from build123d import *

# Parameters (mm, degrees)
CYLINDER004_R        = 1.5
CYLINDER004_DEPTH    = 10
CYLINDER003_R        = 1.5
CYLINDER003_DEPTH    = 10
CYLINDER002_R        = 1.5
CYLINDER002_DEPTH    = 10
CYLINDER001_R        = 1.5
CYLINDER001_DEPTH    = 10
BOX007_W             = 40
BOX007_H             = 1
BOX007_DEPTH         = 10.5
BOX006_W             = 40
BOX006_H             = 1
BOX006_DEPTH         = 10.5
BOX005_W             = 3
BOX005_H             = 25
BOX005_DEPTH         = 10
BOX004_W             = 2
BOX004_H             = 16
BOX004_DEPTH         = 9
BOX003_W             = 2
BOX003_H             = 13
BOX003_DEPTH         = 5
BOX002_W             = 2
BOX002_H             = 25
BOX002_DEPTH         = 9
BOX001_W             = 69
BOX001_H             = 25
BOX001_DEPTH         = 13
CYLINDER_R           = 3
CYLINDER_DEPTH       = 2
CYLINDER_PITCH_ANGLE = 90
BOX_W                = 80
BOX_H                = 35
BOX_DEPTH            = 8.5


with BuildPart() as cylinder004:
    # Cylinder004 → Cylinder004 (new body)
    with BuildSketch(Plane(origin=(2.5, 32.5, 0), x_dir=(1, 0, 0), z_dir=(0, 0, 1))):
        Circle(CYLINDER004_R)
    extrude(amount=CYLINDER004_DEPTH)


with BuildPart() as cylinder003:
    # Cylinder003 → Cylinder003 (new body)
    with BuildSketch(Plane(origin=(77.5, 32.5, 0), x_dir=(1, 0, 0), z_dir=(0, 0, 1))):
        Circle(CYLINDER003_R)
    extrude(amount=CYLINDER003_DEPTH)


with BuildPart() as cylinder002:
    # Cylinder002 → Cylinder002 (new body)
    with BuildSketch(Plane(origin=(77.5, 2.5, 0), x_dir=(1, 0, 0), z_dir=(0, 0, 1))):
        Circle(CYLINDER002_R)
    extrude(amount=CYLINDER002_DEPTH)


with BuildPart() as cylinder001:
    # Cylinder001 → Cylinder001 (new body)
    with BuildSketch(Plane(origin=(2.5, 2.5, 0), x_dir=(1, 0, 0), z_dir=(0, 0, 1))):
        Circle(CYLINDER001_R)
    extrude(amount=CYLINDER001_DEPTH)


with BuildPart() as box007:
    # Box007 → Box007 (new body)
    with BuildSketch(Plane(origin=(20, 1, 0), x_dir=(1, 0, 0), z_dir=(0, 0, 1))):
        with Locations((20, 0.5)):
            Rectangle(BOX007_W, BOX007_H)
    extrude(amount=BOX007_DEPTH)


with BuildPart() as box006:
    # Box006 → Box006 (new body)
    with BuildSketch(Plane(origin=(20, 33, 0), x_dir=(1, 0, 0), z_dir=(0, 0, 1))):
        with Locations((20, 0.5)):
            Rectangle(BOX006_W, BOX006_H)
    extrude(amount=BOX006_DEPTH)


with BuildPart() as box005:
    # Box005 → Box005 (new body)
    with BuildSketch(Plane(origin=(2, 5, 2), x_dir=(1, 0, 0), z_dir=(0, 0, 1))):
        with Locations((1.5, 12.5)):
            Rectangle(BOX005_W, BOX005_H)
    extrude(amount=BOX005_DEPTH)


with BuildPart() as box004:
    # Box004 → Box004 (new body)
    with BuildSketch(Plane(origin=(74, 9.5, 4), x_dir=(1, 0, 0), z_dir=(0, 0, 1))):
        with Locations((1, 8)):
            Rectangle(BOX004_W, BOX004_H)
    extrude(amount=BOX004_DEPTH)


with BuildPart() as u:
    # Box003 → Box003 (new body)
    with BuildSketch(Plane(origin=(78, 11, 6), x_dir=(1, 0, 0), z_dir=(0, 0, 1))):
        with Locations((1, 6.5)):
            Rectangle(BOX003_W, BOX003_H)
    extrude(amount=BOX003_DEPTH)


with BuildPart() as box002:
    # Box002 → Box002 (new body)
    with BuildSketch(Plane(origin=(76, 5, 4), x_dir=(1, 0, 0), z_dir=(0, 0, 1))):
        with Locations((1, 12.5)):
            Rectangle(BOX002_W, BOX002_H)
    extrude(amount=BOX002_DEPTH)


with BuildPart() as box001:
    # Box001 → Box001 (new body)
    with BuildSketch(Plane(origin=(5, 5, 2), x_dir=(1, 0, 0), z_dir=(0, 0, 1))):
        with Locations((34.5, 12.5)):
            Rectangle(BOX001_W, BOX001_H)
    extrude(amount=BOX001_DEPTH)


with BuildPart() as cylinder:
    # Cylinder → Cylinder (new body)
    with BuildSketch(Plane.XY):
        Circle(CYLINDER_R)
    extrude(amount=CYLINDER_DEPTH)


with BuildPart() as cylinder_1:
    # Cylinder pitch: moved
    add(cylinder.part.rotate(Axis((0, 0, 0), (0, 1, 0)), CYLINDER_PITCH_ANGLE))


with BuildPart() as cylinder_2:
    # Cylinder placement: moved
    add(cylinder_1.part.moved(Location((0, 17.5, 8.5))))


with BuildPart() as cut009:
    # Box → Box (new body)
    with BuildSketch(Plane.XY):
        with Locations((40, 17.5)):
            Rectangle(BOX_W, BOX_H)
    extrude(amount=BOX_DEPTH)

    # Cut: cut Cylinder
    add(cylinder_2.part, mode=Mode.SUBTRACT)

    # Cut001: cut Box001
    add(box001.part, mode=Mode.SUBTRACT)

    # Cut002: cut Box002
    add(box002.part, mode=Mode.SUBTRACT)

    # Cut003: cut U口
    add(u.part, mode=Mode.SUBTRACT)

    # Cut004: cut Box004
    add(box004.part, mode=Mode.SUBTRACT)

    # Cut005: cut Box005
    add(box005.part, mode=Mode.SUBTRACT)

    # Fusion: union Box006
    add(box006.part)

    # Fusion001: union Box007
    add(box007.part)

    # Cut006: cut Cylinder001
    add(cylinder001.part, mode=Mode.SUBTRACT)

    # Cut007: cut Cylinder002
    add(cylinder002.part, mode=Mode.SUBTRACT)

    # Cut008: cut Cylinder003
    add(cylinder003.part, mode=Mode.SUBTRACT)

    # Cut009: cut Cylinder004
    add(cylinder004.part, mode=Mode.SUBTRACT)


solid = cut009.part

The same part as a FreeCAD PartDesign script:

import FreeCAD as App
import Part
import Sketcher

doc = App.newDocument("Part")
body = doc.addObject("PartDesign::Body", "Body")

# Sketch on XY plane
sketch1 = body.newObject("Sketcher::SketchObject", "Sketch")
sketch1.AttachmentSupport = (doc.getObject("XY_Plane"), [""])
sketch1.MapMode = "FlatFace"
sketch1.addGeometry(Part.Circle(App.Vector(2.5, 32.5, 0), App.Vector(0, 0, 1), 1.5), False)
sketch1.addConstraint(Sketcher.Constraint("Diameter", 0, 3.0))
sketch1.addConstraint(Sketcher.Constraint("DistanceX", -1, 1, 0, 3, 2.5))
sketch1.addConstraint(Sketcher.Constraint("DistanceY", -1, 1, 0, 3, 32.5))
pad1 = body.newObject("PartDesign::Pad", "Pad")
pad1.Profile = sketch1
pad1.Length = 10
body2 = doc.addObject("PartDesign::Body", "Body001")

# Sketch on XY plane
sketch2 = body2.newObject("Sketcher::SketchObject", "Sketch001")
sketch2.AttachmentSupport = (doc.getObject("XY_Plane001"), [""])
sketch2.MapMode = "FlatFace"
sketch2.addGeometry(Part.Circle(App.Vector(77.5, 32.5, 0), App.Vector(0, 0, 1), 1.5), False)
sketch2.addConstraint(Sketcher.Constraint("Diameter", 0, 3.0))
sketch2.addConstraint(Sketcher.Constraint("DistanceX", -1, 1, 0, 3, 77.5))
sketch2.addConstraint(Sketcher.Constraint("DistanceY", -1, 1, 0, 3, 32.5))
pad2 = body2.newObject("PartDesign::Pad", "Pad001")
pad2.Profile = sketch2
pad2.Length = 10
body3 = doc.addObject("PartDesign::Body", "Body002")

# Sketch on XY plane
sketch3 = body3.newObject("Sketcher::SketchObject", "Sketch002")
sketch3.AttachmentSupport = (doc.getObject("XY_Plane002"), [""])
sketch3.MapMode = "FlatFace"
sketch3.addGeometry(Part.Circle(App.Vector(77.5, 2.5, 0), App.Vector(0, 0, 1), 1.5), False)
sketch3.addConstraint(Sketcher.Constraint("Diameter", 0, 3.0))
sketch3.addConstraint(Sketcher.Constraint("DistanceX", -1, 1, 0, 3, 77.5))
sketch3.addConstraint(Sketcher.Constraint("DistanceY", -1, 1, 0, 3, 2.5))
pad3 = body3.newObject("PartDesign::Pad", "Pad002")
pad3.Profile = sketch3
pad3.Length = 10
body4 = doc.addObject("PartDesign::Body", "Body003")

# Sketch on XY plane
sketch4 = body4.newObject("Sketcher::SketchObject", "Sketch003")
sketch4.AttachmentSupport = (doc.getObject("XY_Plane003"), [""])
sketch4.MapMode = "FlatFace"
sketch4.addGeometry(Part.Circle(App.Vector(2.5, 2.5, 0), App.Vector(0, 0, 1), 1.5), False)
sketch4.addConstraint(Sketcher.Constraint("Diameter", 0, 3.0))
sketch4.addConstraint(Sketcher.Constraint("DistanceX", -1, 1, 0, 3, 2.5))
sketch4.addConstraint(Sketcher.Constraint("DistanceY", -1, 1, 0, 3, 2.5))
pad4 = body4.newObject("PartDesign::Pad", "Pad003")
pad4.Profile = sketch4
pad4.Length = 10
body5 = doc.addObject("PartDesign::Body", "Body004")

# Sketch on XY plane
sketch5 = body5.newObject("Sketcher::SketchObject", "Sketch004")
sketch5.AttachmentSupport = (doc.getObject("XY_Plane004"), [""])
sketch5.MapMode = "FlatFace"
sketch5.addGeometry(Part.LineSegment(App.Vector(20, 2, 0), App.Vector(20, 1, 0)), False)
sketch5.addGeometry(Part.LineSegment(App.Vector(20, 1, 0), App.Vector(60, 1, 0)), False)
sketch5.addGeometry(Part.LineSegment(App.Vector(60, 1, 0), App.Vector(60, 2, 0)), False)
sketch5.addGeometry(Part.LineSegment(App.Vector(60, 2, 0), App.Vector(20, 2, 0)), False)
sketch5.addConstraint(Sketcher.Constraint("Coincident", 0, 2, 1, 1))
sketch5.addConstraint(Sketcher.Constraint("Coincident", 1, 2, 2, 1))
sketch5.addConstraint(Sketcher.Constraint("Coincident", 2, 2, 3, 1))
sketch5.addConstraint(Sketcher.Constraint("Coincident", 3, 2, 0, 1))
sketch5.addConstraint(Sketcher.Constraint("Vertical", 0))
sketch5.addConstraint(Sketcher.Constraint("Horizontal", 1))
sketch5.addConstraint(Sketcher.Constraint("Vertical", 2))
sketch5.addConstraint(Sketcher.Constraint("Horizontal", 3))
sketch5.addConstraint(Sketcher.Constraint("DistanceX", 1, 1, 1, 2, 40.0))
sketch5.addConstraint(Sketcher.Constraint("DistanceY", 0, 2, 0, 1, 1.0))
sketch5.addConstraint(Sketcher.Constraint("DistanceX", -1, 1, 0, 2, 20.0))
sketch5.addConstraint(Sketcher.Constraint("DistanceY", -1, 1, 0, 2, 1.0))
pad5 = body5.newObject("PartDesign::Pad", "Pad004")
pad5.Profile = sketch5
pad5.Length = 10.5
body6 = doc.addObject("PartDesign::Body", "Body005")

# Sketch on XY plane
sketch6 = body6.newObject("Sketcher::SketchObject", "Sketch005")
sketch6.AttachmentSupport = (doc.getObject("XY_Plane005"), [""])
sketch6.MapMode = "FlatFace"
sketch6.addGeometry(Part.LineSegment(App.Vector(20, 34, 0), App.Vector(20, 33, 0)), False)
sketch6.addGeometry(Part.LineSegment(App.Vector(20, 33, 0), App.Vector(60, 33, 0)), False)
sketch6.addGeometry(Part.LineSegment(App.Vector(60, 33, 0), App.Vector(60, 34, 0)), False)
sketch6.addGeometry(Part.LineSegment(App.Vector(60, 34, 0), App.Vector(20, 34, 0)), False)
sketch6.addConstraint(Sketcher.Constraint("Coincident", 0, 2, 1, 1))
sketch6.addConstraint(Sketcher.Constraint("Coincident", 1, 2, 2, 1))
sketch6.addConstraint(Sketcher.Constraint("Coincident", 2, 2, 3, 1))
sketch6.addConstraint(Sketcher.Constraint("Coincident", 3, 2, 0, 1))
sketch6.addConstraint(Sketcher.Constraint("Vertical", 0))
sketch6.addConstraint(Sketcher.Constraint("Horizontal", 1))
sketch6.addConstraint(Sketcher.Constraint("Vertical", 2))
sketch6.addConstraint(Sketcher.Constraint("Horizontal", 3))
sketch6.addConstraint(Sketcher.Constraint("DistanceX", 1, 1, 1, 2, 40.0))
sketch6.addConstraint(Sketcher.Constraint("DistanceY", 0, 2, 0, 1, 1.0))
sketch6.addConstraint(Sketcher.Constraint("DistanceX", -1, 1, 0, 2, 20.0))
sketch6.addConstraint(Sketcher.Constraint("DistanceY", -1, 1, 0, 2, 33.0))
pad6 = body6.newObject("PartDesign::Pad", "Pad005")
pad6.Profile = sketch6
pad6.Length = 10.5
body7 = doc.addObject("PartDesign::Body", "Body006")

# Sketch on XY plane
sketch7 = body7.newObject("Sketcher::SketchObject", "Sketch006")
sketch7.AttachmentSupport = (doc.getObject("XY_Plane006"), [""])
sketch7.MapMode = "FlatFace"
sketch7.AttachmentOffset = App.Placement(App.Vector(0, 0, 2), App.Rotation())
sketch7.addGeometry(Part.LineSegment(App.Vector(2, 30, 0), App.Vector(2, 5, 0)), False)
sketch7.addGeometry(Part.LineSegment(App.Vector(2, 5, 0), App.Vector(5, 5, 0)), False)
sketch7.addGeometry(Part.LineSegment(App.Vector(5, 5, 0), App.Vector(5, 30, 0)), False)
sketch7.addGeometry(Part.LineSegment(App.Vector(5, 30, 0), App.Vector(2, 30, 0)), False)
sketch7.addConstraint(Sketcher.Constraint("Coincident", 0, 2, 1, 1))
sketch7.addConstraint(Sketcher.Constraint("Coincident", 1, 2, 2, 1))
sketch7.addConstraint(Sketcher.Constraint("Coincident", 2, 2, 3, 1))
sketch7.addConstraint(Sketcher.Constraint("Coincident", 3, 2, 0, 1))
sketch7.addConstraint(Sketcher.Constraint("Vertical", 0))
sketch7.addConstraint(Sketcher.Constraint("Horizontal", 1))
sketch7.addConstraint(Sketcher.Constraint("Vertical", 2))
sketch7.addConstraint(Sketcher.Constraint("Horizontal", 3))
sketch7.addConstraint(Sketcher.Constraint("DistanceX", 1, 1, 1, 2, 3.0))
sketch7.addConstraint(Sketcher.Constraint("DistanceY", 0, 2, 0, 1, 25.0))
sketch7.addConstraint(Sketcher.Constraint("DistanceX", -1, 1, 0, 2, 2.0))
sketch7.addConstraint(Sketcher.Constraint("DistanceY", -1, 1, 0, 2, 5.0))
pad7 = body7.newObject("PartDesign::Pad", "Pad006")
pad7.Profile = sketch7
pad7.Length = 10
body8 = doc.addObject("PartDesign::Body", "Body007")

# Sketch on XY plane
sketch8 = body8.newObject("Sketcher::SketchObject", "Sketch007")
sketch8.AttachmentSupport = (doc.getObject("XY_Plane007"), [""])
sketch8.MapMode = "FlatFace"
sketch8.AttachmentOffset = App.Placement(App.Vector(0, 0, 4), App.Rotation())
sketch8.addGeometry(Part.LineSegment(App.Vector(74, 25.5, 0), App.Vector(74, 9.5, 0)), False)
sketch8.addGeometry(Part.LineSegment(App.Vector(74, 9.5, 0), App.Vector(76, 9.5, 0)), False)
sketch8.addGeometry(Part.LineSegment(App.Vector(76, 9.5, 0), App.Vector(76, 25.5, 0)), False)
sketch8.addGeometry(Part.LineSegment(App.Vector(76, 25.5, 0), App.Vector(74, 25.5, 0)), False)
sketch8.addConstraint(Sketcher.Constraint("Coincident", 0, 2, 1, 1))
sketch8.addConstraint(Sketcher.Constraint("Coincident", 1, 2, 2, 1))
sketch8.addConstraint(Sketcher.Constraint("Coincident", 2, 2, 3, 1))
sketch8.addConstraint(Sketcher.Constraint("Coincident", 3, 2, 0, 1))
sketch8.addConstraint(Sketcher.Constraint("Vertical", 0))
sketch8.addConstraint(Sketcher.Constraint("Horizontal", 1))
sketch8.addConstraint(Sketcher.Constraint("Vertical", 2))
sketch8.addConstraint(Sketcher.Constraint("Horizontal", 3))
sketch8.addConstraint(Sketcher.Constraint("DistanceX", 1, 1, 1, 2, 2.0))
sketch8.addConstraint(Sketcher.Constraint("DistanceY", 0, 2, 0, 1, 16.0))
sketch8.addConstraint(Sketcher.Constraint("DistanceX", -1, 1, 0, 2, 74.0))
sketch8.addConstraint(Sketcher.Constraint("DistanceY", -1, 1, 0, 2, 9.5))
pad8 = body8.newObject("PartDesign::Pad", "Pad007")
pad8.Profile = sketch8
pad8.Length = 9
body9 = doc.addObject("PartDesign::Body", "Body008")

# Sketch on XY plane
sketch9 = body9.newObject("Sketcher::SketchObject", "Sketch008")
sketch9.AttachmentSupport = (doc.getObject("XY_Plane008"), [""])
sketch9.MapMode = "FlatFace"
sketch9.AttachmentOffset = App.Placement(App.Vector(0, 0, 6), App.Rotation())
sketch9.addGeometry(Part.LineSegment(App.Vector(78, 24, 0), App.Vector(78, 11, 0)), False)
sketch9.addGeometry(Part.LineSegment(App.Vector(78, 11, 0), App.Vector(80, 11, 0)), False)
sketch9.addGeometry(Part.LineSegment(App.Vector(80, 11, 0), App.Vector(80, 24, 0)), False)
sketch9.addGeometry(Part.LineSegment(App.Vector(80, 24, 0), App.Vector(78, 24, 0)), False)
sketch9.addConstraint(Sketcher.Constraint("Coincident", 0, 2, 1, 1))
sketch9.addConstraint(Sketcher.Constraint("Coincident", 1, 2, 2, 1))
sketch9.addConstraint(Sketcher.Constraint("Coincident", 2, 2, 3, 1))
sketch9.addConstraint(Sketcher.Constraint("Coincident", 3, 2, 0, 1))
sketch9.addConstraint(Sketcher.Constraint("Vertical", 0))
sketch9.addConstraint(Sketcher.Constraint("Horizontal", 1))
sketch9.addConstraint(Sketcher.Constraint("Vertical", 2))
sketch9.addConstraint(Sketcher.Constraint("Horizontal", 3))
sketch9.addConstraint(Sketcher.Constraint("DistanceX", 1, 1, 1, 2, 2.0))
sketch9.addConstraint(Sketcher.Constraint("DistanceY", 0, 2, 0, 1, 13.0))
sketch9.addConstraint(Sketcher.Constraint("DistanceX", -1, 1, 0, 2, 78.0))
sketch9.addConstraint(Sketcher.Constraint("DistanceY", -1, 1, 0, 2, 11.0))
pad9 = body9.newObject("PartDesign::Pad", "Pad008")
pad9.Profile = sketch9
pad9.Length = 5
body10 = doc.addObject("PartDesign::Body", "Body009")

# Sketch on XY plane
sketch10 = body10.newObject("Sketcher::SketchObject", "Sketch009")
sketch10.AttachmentSupport = (doc.getObject("XY_Plane009"), [""])
sketch10.MapMode = "FlatFace"
sketch10.AttachmentOffset = App.Placement(App.Vector(0, 0, 4), App.Rotation())
sketch10.addGeometry(Part.LineSegment(App.Vector(76, 30, 0), App.Vector(76, 5, 0)), False)
sketch10.addGeometry(Part.LineSegment(App.Vector(76, 5, 0), App.Vector(78, 5, 0)), False)
sketch10.addGeometry(Part.LineSegment(App.Vector(78, 5, 0), App.Vector(78, 30, 0)), False)
sketch10.addGeometry(Part.LineSegment(App.Vector(78, 30, 0), App.Vector(76, 30, 0)), False)
sketch10.addConstraint(Sketcher.Constraint("Coincident", 0, 2, 1, 1))
sketch10.addConstraint(Sketcher.Constraint("Coincident", 1, 2, 2, 1))
sketch10.addConstraint(Sketcher.Constraint("Coincident", 2, 2, 3, 1))
sketch10.addConstraint(Sketcher.Constraint("Coincident", 3, 2, 0, 1))
sketch10.addConstraint(Sketcher.Constraint("Vertical", 0))
sketch10.addConstraint(Sketcher.Constraint("Horizontal", 1))
sketch10.addConstraint(Sketcher.Constraint("Vertical", 2))
sketch10.addConstraint(Sketcher.Constraint("Horizontal", 3))
sketch10.addConstraint(Sketcher.Constraint("DistanceX", 1, 1, 1, 2, 2.0))
sketch10.addConstraint(Sketcher.Constraint("DistanceY", 0, 2, 0, 1, 25.0))
sketch10.addConstraint(Sketcher.Constraint("DistanceX", -1, 1, 0, 2, 76.0))
sketch10.addConstraint(Sketcher.Constraint("DistanceY", -1, 1, 0, 2, 5.0))
pad10 = body10.newObject("PartDesign::Pad", "Pad009")
pad10.Profile = sketch10
pad10.Length = 9
body11 = doc.addObject("PartDesign::Body", "Body010")

# Sketch on XY plane
sketch11 = body11.newObject("Sketcher::SketchObject", "Sketch010")
sketch11.AttachmentSupport = (doc.getObject("XY_Plane010"), [""])
sketch11.MapMode = "FlatFace"
sketch11.AttachmentOffset = App.Placement(App.Vector(0, 0, 2), App.Rotation())
sketch11.addGeometry(Part.LineSegment(App.Vector(5, 30, 0), App.Vector(5, 5, 0)), False)
sketch11.addGeometry(Part.LineSegment(App.Vector(5, 5, 0), App.Vector(74, 5, 0)), False)
sketch11.addGeometry(Part.LineSegment(App.Vector(74, 5, 0), App.Vector(74, 30, 0)), False)
sketch11.addGeometry(Part.LineSegment(App.Vector(74, 30, 0), App.Vector(5, 30, 0)), False)
sketch11.addConstraint(Sketcher.Constraint("Coincident", 0, 2, 1, 1))
sketch11.addConstraint(Sketcher.Constraint("Coincident", 1, 2, 2, 1))
sketch11.addConstraint(Sketcher.Constraint("Coincident", 2, 2, 3, 1))
sketch11.addConstraint(Sketcher.Constraint("Coincident", 3, 2, 0, 1))
sketch11.addConstraint(Sketcher.Constraint("Vertical", 0))
sketch11.addConstraint(Sketcher.Constraint("Horizontal", 1))
sketch11.addConstraint(Sketcher.Constraint("Vertical", 2))
sketch11.addConstraint(Sketcher.Constraint("Horizontal", 3))
sketch11.addConstraint(Sketcher.Constraint("DistanceX", 1, 1, 1, 2, 69.0))
sketch11.addConstraint(Sketcher.Constraint("DistanceY", 0, 2, 0, 1, 25.0))
sketch11.addConstraint(Sketcher.Constraint("DistanceX", -1, 1, 0, 2, 5.0))
sketch11.addConstraint(Sketcher.Constraint("DistanceY", -1, 1, 0, 2, 5.0))
pad11 = body11.newObject("PartDesign::Pad", "Pad010")
pad11.Profile = sketch11
pad11.Length = 13
body12 = doc.addObject("PartDesign::Body", "Body011")

# Sketch on XY plane
sketch12 = body12.newObject("Sketcher::SketchObject", "Sketch011")
sketch12.AttachmentSupport = (doc.getObject("XY_Plane011"), [""])
sketch12.MapMode = "FlatFace"
sketch12.addGeometry(Part.Circle(App.Vector(0, 0, 0), App.Vector(0, 0, 1), 3), False)
sketch12.addConstraint(Sketcher.Constraint("Coincident", 0, 3, -1, 1))
sketch12.addConstraint(Sketcher.Constraint("Diameter", 0, 6.0))
pad12 = body12.newObject("PartDesign::Pad", "Pad011")
pad12.Profile = sketch12
pad12.Length = 2
body13 = doc.addObject("PartDesign::Body", "Body012")
doc.recompute()

body12.Placement = App.Placement(App.Vector(0, 0, 0), App.Rotation(App.Vector(0, 1, 0), 90))
boolean = body13.newObject("PartDesign::Boolean", "Boolean")
boolean.Type = "Fuse"
boolean.addObjects([body12])
body14 = doc.addObject("PartDesign::Body", "Body013")
doc.recompute()

body13.Placement = App.Placement(App.Vector(0, 17.5, 8.5), App.Rotation(App.Vector(0, 0, 1), 0))
boolean2 = body14.newObject("PartDesign::Boolean", "Boolean001")
boolean2.Type = "Fuse"
boolean2.addObjects([body13])
body15 = doc.addObject("PartDesign::Body", "Body014")

# Sketch on XY plane
sketch13 = body15.newObject("Sketcher::SketchObject", "Sketch012")
sketch13.AttachmentSupport = (doc.getObject("XY_Plane014"), [""])
sketch13.MapMode = "FlatFace"
sketch13.addGeometry(Part.LineSegment(App.Vector(0, 35, 0), App.Vector(0, 0, 0)), False)
sketch13.addGeometry(Part.LineSegment(App.Vector(0, 0, 0), App.Vector(80, 0, 0)), False)
sketch13.addGeometry(Part.LineSegment(App.Vector(80, 0, 0), App.Vector(80, 35, 0)), False)
sketch13.addGeometry(Part.LineSegment(App.Vector(80, 35, 0), App.Vector(0, 35, 0)), False)
sketch13.addConstraint(Sketcher.Constraint("Coincident", 0, 2, 1, 1))
sketch13.addConstraint(Sketcher.Constraint("Coincident", 1, 2, 2, 1))
sketch13.addConstraint(Sketcher.Constraint("Coincident", 2, 2, 3, 1))
sketch13.addConstraint(Sketcher.Constraint("Coincident", 3, 2, 0, 1))
sketch13.addConstraint(Sketcher.Constraint("Vertical", 0))
sketch13.addConstraint(Sketcher.Constraint("Horizontal", 1))
sketch13.addConstraint(Sketcher.Constraint("Vertical", 2))
sketch13.addConstraint(Sketcher.Constraint("Horizontal", 3))
sketch13.addConstraint(Sketcher.Constraint("Coincident", 0, 2, -1, 1))
sketch13.addConstraint(Sketcher.Constraint("DistanceX", 1, 1, 1, 2, 80.0))
sketch13.addConstraint(Sketcher.Constraint("DistanceY", 0, 2, 0, 1, 35.0))
pad13 = body15.newObject("PartDesign::Pad", "Pad012")
pad13.Profile = sketch13
pad13.Length = 8.5
doc.recompute()

boolean3 = body15.newObject("PartDesign::Boolean", "Boolean002")
boolean3.Type = "Cut"
boolean3.addObjects([body14])
doc.recompute()

boolean4 = body15.newObject("PartDesign::Boolean", "Boolean003")
boolean4.Type = "Cut"
boolean4.addObjects([body11])
doc.recompute()

boolean5 = body15.newObject("PartDesign::Boolean", "Boolean004")
boolean5.Type = "Cut"
boolean5.addObjects([body10])
doc.recompute()

boolean6 = body15.newObject("PartDesign::Boolean", "Boolean005")
boolean6.Type = "Cut"
boolean6.addObjects([body9])
doc.recompute()

boolean7 = body15.newObject("PartDesign::Boolean", "Boolean006")
boolean7.Type = "Cut"
boolean7.addObjects([body8])
doc.recompute()

boolean8 = body15.newObject("PartDesign::Boolean", "Boolean007")
boolean8.Type = "Cut"
boolean8.addObjects([body7])
doc.recompute()

boolean9 = body15.newObject("PartDesign::Boolean", "Boolean008")
boolean9.Type = "Fuse"
boolean9.addObjects([body6])
doc.recompute()

boolean10 = body15.newObject("PartDesign::Boolean", "Boolean009")
boolean10.Type = "Fuse"
boolean10.addObjects([body5])
doc.recompute()

boolean11 = body15.newObject("PartDesign::Boolean", "Boolean010")
boolean11.Type = "Cut"
boolean11.addObjects([body4])
doc.recompute()

boolean12 = body15.newObject("PartDesign::Boolean", "Boolean011")
boolean12.Type = "Cut"
boolean12.addObjects([body3])
doc.recompute()

boolean13 = body15.newObject("PartDesign::Boolean", "Boolean012")
boolean13.Type = "Cut"
boolean13.addObjects([body2])
doc.recompute()

boolean14 = body15.newObject("PartDesign::Boolean", "Boolean013")
boolean14.Type = "Cut"
boolean14.addObjects([body])

doc.recompute()
